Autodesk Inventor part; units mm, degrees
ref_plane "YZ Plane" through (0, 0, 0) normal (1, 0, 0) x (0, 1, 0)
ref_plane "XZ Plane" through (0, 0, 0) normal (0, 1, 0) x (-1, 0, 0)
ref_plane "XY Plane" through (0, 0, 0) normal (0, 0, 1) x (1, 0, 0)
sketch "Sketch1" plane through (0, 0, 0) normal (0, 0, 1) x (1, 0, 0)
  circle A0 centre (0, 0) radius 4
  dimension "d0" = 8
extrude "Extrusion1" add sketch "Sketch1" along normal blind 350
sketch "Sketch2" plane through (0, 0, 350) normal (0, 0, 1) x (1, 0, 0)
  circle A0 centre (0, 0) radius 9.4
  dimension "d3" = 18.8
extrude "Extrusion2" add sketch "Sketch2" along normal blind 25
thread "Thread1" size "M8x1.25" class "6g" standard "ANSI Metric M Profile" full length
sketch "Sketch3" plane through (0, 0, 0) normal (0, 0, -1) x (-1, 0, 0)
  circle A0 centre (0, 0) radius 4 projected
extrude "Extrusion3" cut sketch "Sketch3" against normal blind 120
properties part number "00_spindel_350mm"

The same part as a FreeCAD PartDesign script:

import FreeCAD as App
import Part
import Sketcher

V = App.Vector

doc = App.newDocument("Part")
body = doc.addObject("PartDesign::Body", "Body")

sketch1 = body.newObject("Sketcher::SketchObject", "Sketch")
sketch1.AttachmentSupport = (doc.getObject("XY_Plane"), [""])
sketch1.MapMode = "FlatFace"
sketch1.addGeometry(Part.Circle(V(0, 0, 0), V(0, 0, 1), 4), False)
sketch1.addConstraint([
    Sketcher.Constraint("Coincident", 0, 3, -1, 1),
    Sketcher.Constraint("Diameter", 0, 8.0),
])
pad1 = body.newObject("PartDesign::Pad", "Pad")
pad1.Profile = sketch1
pad1.Length = 350

sketch2 = body.newObject("Sketcher::SketchObject", "Sketch001")
sketch2.AttachmentSupport = (doc.getObject("XY_Plane"), [""])
sketch2.MapMode = "FlatFace"
sketch2.AttachmentOffset = App.Placement(V(0, 0, 350), App.Rotation())
sketch2.addGeometry(Part.Circle(V(0, 0, 0), V(0, 0, 1), 9.4), False)
sketch2.addConstraint([
    Sketcher.Constraint("Coincident", 0, 3, -1, 1),
    Sketcher.Constraint("Diameter", 0, 18.8),
])
pad2 = body.newObject("PartDesign::Pad", "Pad001")
pad2.Profile = sketch2
pad2.Length = 25

sketch3 = body.newObject("Sketcher::SketchObject", "Sketch002")
sketch3.AttachmentSupport = (doc.getObject("XY_Plane"), [""])
sketch3.MapMode = "FlatFace"
sketch3.addGeometry(Part.Circle(V(0, 0, 0), V(0, 0, 1), 4), False)
sketch3.addConstraint([
    Sketcher.Constraint("Coincident", 0, 3, -1, 1),
    Sketcher.Constraint("Diameter", 0, 8.0),
])
pocket1 = body.newObject("PartDesign::Pocket", "Pocket")
pocket1.Profile = sketch3
pocket1.Length = 120
pocket1.Reversed = True

doc.recompute()
